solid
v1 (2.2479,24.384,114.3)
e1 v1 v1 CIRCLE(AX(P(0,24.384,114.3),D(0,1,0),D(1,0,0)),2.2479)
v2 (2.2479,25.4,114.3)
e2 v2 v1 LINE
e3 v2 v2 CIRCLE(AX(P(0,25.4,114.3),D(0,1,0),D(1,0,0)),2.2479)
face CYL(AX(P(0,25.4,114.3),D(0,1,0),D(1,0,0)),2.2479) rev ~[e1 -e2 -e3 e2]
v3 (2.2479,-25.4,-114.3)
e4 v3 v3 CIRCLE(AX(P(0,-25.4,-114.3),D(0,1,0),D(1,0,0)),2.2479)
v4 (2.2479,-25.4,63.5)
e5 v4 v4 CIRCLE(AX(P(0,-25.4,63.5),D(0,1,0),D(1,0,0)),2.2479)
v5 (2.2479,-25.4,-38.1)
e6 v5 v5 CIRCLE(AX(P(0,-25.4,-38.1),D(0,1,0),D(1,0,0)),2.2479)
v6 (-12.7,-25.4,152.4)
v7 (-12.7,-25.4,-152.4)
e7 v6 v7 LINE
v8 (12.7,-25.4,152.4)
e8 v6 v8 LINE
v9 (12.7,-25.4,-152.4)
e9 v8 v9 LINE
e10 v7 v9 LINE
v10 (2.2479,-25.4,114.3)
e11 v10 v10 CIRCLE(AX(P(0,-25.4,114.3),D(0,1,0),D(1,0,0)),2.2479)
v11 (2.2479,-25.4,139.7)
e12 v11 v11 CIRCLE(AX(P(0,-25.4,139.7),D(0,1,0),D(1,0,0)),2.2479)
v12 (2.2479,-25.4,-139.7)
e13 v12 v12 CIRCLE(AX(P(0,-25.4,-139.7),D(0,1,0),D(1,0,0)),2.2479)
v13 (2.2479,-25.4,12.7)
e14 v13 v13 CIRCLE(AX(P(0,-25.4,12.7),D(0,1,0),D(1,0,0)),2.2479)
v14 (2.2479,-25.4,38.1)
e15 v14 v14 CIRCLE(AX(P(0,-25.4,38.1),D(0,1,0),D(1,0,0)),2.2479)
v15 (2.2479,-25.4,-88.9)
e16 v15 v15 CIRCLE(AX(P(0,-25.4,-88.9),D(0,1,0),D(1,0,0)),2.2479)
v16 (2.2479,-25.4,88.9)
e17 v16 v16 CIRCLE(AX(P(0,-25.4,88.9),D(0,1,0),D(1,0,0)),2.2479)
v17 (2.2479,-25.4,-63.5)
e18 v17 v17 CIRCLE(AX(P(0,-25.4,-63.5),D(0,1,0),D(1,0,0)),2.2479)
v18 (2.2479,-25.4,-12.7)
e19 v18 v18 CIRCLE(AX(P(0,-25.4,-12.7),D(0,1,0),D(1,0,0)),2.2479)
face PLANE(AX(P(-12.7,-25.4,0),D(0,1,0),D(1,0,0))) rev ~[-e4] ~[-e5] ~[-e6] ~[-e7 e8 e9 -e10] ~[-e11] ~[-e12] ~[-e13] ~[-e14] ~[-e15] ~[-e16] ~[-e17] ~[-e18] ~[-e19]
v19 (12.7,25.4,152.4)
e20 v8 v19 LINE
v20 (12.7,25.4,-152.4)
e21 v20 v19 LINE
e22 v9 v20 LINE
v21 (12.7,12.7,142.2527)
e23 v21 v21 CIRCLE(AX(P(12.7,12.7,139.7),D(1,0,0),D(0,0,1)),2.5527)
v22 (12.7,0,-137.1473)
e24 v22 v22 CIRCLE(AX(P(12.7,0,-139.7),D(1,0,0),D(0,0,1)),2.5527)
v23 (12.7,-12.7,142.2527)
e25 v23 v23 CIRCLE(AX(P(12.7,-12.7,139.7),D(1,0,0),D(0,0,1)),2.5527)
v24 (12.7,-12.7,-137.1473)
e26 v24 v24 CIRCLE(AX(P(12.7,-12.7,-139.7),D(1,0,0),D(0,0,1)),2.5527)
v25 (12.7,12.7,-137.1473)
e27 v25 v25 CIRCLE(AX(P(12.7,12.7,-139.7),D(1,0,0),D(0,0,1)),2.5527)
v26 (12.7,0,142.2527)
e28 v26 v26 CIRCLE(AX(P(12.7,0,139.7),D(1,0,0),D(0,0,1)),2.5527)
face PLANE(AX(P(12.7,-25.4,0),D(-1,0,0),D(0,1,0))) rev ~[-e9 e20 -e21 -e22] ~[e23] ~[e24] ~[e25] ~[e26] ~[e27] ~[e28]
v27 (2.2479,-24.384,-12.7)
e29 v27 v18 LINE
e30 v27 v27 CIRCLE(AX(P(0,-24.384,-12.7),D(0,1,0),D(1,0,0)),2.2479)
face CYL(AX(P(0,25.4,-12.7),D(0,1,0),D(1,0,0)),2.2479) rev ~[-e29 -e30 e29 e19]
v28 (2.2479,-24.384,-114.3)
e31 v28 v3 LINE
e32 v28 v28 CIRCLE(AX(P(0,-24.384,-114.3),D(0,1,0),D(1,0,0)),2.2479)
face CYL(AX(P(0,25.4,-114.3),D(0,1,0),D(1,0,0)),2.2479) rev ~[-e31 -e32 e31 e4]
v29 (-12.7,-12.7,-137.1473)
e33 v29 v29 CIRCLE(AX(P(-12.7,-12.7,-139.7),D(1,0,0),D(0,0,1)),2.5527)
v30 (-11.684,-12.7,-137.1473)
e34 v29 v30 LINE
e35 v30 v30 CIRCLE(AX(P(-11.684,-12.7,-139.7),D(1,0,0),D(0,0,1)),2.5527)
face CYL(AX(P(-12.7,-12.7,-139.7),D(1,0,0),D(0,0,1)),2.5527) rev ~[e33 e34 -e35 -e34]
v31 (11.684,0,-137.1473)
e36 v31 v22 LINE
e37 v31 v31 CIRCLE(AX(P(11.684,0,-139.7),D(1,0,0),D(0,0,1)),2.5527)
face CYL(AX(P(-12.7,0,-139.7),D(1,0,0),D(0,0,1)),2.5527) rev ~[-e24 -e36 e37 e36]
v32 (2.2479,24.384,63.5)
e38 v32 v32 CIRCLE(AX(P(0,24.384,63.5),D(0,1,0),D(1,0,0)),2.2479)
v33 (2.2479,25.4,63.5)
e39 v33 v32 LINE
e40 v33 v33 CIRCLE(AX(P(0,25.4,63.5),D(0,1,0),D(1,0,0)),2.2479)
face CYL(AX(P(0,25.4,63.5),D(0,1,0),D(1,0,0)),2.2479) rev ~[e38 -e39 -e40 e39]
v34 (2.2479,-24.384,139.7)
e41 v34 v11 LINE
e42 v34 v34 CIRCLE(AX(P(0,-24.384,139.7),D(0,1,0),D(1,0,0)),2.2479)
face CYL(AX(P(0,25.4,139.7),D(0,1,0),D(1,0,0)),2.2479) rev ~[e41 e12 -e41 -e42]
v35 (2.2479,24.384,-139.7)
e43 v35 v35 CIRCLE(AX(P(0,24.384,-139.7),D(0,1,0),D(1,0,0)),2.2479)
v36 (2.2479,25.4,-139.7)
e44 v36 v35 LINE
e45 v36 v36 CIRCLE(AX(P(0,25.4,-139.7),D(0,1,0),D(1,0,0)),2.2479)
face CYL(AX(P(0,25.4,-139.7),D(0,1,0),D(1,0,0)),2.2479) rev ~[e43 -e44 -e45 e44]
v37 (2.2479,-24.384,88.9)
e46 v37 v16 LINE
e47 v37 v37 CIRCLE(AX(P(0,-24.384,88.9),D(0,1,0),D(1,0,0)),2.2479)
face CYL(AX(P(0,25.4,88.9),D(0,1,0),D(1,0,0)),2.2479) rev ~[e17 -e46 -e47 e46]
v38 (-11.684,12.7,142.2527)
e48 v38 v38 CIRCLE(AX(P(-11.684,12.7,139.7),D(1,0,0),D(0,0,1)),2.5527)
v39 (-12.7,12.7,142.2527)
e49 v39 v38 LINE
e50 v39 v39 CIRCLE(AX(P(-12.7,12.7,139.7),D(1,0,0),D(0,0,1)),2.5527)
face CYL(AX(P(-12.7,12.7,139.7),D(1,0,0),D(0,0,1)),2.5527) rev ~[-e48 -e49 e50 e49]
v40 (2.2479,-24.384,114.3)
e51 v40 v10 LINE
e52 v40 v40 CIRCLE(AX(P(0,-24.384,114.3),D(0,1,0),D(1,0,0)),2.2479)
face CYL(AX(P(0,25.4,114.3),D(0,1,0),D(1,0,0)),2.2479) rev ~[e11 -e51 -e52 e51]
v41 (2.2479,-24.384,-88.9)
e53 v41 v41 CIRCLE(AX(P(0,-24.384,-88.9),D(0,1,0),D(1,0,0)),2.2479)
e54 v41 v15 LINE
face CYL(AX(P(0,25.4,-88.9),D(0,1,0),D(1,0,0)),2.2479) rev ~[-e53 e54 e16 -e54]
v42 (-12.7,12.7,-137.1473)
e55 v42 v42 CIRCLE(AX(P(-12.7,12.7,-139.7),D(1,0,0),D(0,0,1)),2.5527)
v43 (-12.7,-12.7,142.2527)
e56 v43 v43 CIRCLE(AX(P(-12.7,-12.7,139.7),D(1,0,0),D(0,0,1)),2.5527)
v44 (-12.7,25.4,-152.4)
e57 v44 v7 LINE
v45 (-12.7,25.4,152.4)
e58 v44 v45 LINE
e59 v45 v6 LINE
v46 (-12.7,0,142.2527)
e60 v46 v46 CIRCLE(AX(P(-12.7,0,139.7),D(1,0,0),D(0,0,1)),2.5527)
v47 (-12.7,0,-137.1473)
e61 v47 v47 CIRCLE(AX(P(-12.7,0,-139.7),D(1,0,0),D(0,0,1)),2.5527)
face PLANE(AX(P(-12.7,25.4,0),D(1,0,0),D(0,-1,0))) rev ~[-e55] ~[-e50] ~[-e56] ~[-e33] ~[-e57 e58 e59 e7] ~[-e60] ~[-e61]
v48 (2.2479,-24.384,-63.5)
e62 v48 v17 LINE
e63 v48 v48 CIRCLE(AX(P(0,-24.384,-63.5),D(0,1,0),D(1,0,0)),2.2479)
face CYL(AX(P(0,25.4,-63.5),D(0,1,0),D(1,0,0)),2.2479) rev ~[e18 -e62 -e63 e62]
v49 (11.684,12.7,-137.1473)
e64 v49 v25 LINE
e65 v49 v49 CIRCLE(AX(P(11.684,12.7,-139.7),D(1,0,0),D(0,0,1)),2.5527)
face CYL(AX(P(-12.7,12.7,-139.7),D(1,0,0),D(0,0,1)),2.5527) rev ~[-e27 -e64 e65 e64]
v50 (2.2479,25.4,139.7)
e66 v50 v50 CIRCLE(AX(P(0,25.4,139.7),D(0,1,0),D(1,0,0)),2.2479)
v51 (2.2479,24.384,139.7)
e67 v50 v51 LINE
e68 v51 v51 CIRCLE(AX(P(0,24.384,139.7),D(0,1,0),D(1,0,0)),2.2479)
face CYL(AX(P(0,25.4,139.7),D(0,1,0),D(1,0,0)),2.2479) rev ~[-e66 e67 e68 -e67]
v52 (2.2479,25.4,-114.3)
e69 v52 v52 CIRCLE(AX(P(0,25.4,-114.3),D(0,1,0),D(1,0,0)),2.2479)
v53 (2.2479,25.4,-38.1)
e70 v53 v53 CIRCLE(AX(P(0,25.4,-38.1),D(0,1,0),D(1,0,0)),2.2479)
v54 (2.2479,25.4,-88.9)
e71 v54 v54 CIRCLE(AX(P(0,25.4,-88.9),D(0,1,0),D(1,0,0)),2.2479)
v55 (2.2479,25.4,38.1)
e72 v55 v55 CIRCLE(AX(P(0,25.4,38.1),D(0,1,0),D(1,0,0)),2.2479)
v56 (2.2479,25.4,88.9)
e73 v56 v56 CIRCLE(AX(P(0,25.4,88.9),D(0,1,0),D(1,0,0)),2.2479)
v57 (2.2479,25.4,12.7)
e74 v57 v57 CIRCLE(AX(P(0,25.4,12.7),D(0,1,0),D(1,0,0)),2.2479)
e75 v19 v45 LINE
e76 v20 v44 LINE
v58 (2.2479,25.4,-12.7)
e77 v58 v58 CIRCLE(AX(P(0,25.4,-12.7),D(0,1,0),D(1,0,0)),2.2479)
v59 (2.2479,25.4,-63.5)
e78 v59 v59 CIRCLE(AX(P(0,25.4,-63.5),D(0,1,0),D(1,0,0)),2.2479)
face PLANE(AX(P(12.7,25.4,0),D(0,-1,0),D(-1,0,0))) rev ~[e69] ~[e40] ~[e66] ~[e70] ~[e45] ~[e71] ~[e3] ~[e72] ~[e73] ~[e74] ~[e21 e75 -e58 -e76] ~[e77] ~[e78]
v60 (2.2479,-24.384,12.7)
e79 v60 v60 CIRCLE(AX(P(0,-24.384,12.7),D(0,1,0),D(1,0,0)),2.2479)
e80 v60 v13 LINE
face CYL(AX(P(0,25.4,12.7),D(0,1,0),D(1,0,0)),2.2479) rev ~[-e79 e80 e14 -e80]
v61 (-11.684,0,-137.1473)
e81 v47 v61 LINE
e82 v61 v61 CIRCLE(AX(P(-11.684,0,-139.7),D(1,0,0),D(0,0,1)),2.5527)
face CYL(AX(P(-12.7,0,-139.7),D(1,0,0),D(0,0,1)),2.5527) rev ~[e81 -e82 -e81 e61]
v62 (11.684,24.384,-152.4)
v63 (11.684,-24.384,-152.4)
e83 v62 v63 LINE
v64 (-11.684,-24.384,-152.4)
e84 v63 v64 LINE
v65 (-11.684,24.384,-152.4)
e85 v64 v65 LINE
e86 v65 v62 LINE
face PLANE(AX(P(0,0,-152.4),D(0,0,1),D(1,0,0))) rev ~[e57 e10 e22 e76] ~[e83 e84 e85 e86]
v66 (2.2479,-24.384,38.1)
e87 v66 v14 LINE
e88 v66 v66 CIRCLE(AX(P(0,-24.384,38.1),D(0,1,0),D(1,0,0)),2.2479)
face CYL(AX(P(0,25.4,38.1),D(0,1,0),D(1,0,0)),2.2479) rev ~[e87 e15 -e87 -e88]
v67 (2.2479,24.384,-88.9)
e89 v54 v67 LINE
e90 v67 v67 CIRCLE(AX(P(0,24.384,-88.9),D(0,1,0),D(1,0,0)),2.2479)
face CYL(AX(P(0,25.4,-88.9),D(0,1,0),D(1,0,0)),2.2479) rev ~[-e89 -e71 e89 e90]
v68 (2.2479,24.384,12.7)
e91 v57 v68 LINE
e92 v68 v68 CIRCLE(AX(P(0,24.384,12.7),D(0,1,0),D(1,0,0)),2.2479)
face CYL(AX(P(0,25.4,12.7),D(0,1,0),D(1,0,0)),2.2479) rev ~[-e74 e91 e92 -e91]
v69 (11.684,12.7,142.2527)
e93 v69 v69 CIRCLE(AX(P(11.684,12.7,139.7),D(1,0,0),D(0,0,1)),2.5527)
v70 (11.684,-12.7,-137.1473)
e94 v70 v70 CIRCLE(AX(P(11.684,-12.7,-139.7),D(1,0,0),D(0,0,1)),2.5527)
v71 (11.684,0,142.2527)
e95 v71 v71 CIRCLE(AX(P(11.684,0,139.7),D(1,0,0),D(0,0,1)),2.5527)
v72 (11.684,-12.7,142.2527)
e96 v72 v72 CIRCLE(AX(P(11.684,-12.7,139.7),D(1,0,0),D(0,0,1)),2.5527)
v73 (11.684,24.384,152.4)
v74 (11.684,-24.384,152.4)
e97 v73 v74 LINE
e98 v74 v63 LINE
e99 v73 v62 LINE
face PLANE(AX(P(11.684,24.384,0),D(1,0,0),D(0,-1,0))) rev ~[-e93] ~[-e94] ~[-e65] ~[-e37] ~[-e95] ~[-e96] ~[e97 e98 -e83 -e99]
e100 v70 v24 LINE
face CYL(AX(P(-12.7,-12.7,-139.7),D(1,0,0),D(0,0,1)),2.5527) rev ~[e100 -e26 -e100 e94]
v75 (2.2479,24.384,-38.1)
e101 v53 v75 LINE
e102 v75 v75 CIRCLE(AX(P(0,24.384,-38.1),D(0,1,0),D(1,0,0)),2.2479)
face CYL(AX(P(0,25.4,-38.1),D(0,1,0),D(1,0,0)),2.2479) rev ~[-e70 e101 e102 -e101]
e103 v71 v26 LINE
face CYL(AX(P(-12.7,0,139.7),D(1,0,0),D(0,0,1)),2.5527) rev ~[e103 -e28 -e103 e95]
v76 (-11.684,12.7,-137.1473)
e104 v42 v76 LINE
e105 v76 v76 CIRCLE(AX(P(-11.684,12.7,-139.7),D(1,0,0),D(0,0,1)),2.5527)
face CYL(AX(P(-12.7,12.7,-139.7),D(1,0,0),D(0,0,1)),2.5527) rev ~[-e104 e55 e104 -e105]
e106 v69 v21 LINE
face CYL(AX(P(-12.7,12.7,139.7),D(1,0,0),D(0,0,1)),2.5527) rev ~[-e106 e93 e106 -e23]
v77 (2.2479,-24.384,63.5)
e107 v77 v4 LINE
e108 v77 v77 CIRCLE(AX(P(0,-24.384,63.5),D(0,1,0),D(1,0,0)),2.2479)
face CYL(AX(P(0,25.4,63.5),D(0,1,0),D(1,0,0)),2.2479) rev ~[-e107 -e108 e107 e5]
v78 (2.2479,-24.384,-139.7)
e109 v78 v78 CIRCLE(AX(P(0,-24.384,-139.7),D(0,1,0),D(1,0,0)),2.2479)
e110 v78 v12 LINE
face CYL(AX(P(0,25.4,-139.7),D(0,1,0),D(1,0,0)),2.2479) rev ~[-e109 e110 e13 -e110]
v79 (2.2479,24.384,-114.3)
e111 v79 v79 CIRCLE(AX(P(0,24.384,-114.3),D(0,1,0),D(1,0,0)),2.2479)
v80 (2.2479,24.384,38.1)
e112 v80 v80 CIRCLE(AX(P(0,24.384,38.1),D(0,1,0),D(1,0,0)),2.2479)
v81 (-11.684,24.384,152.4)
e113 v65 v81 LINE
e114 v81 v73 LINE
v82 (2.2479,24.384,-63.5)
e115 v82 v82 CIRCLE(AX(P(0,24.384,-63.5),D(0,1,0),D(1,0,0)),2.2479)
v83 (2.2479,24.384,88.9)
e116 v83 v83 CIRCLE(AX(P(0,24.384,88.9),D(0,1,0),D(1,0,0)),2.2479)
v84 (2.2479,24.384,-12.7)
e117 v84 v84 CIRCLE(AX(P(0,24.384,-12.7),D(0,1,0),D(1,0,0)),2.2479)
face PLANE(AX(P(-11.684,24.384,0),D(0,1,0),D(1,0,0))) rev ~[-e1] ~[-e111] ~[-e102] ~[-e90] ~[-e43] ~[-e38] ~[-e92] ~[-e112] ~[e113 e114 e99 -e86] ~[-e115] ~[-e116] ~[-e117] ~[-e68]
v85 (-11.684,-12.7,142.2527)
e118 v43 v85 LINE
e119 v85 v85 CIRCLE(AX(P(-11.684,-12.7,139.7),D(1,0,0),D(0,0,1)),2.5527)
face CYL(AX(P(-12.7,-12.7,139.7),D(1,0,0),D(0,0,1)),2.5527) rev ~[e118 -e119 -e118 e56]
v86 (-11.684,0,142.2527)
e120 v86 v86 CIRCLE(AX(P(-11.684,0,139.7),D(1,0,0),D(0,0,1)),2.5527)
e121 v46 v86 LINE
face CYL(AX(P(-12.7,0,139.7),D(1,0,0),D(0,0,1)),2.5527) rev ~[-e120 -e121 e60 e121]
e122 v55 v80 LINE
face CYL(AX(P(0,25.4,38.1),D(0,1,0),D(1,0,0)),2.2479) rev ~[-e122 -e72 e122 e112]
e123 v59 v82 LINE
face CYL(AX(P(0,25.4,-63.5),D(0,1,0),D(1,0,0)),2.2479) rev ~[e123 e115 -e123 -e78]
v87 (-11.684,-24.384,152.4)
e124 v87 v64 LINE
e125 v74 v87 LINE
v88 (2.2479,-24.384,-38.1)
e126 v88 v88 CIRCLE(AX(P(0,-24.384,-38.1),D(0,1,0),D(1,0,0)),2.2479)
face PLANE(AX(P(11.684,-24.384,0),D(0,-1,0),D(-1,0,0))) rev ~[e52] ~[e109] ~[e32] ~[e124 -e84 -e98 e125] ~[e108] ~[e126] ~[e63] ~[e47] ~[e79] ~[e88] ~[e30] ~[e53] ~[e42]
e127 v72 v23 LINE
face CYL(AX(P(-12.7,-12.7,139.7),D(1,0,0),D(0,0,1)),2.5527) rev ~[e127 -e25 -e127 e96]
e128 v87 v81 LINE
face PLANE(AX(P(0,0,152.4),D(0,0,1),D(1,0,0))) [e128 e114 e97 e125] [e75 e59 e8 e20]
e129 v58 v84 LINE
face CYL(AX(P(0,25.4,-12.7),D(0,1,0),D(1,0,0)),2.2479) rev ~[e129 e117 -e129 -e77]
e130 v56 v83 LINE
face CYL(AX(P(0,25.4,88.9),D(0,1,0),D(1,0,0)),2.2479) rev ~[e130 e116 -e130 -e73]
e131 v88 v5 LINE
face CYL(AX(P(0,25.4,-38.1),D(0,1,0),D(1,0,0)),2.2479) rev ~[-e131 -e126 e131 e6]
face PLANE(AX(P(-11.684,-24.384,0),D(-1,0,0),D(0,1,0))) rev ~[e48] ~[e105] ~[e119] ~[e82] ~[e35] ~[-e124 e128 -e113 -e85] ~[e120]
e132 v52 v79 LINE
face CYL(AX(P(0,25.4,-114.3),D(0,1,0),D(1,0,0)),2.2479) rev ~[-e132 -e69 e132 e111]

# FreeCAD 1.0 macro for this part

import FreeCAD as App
import Part
import Sketcher

V = App.Vector
Q = App.Units.Quantity


def add_polygon(sketch, points):
    """Adds a closed chain of lines whose ends are joined by coincident constraints."""
    first, n = sketch.GeometryCount, len(points)
    for a, b in zip(points, points[1:] + points[:1]):
        sketch.addGeometry(Part.LineSegment(App.Vector(*a, 0), App.Vector(*b, 0)), False)
    for i in range(n):
        sketch.addConstraint(Sketcher.Constraint("Coincident", first + i, 2, first + (i + 1) % n, 1))

doc = App.newDocument("Part")
body = doc.addObject("PartDesign::Body", "Body")

sketch1 = body.newObject("Sketcher::SketchObject", "Sketch")
sketch1.AttachmentSupport = (doc.getObject("XY_Plane"), [""])
sketch1.MapMode = "FlatFace"
add_polygon(sketch1, [(13, -25), (13, 25), (-13, 25), (-13, -25)])
add_polygon(sketch1, [(-12, -24), (-12, 24), (12, 24), (12, -24)])
sketch1.addConstraint(Sketcher.Constraint("Vertical", 0))
sketch1.addConstraint(Sketcher.Constraint("Horizontal", 1))
sketch1.addConstraint(Sketcher.Constraint("Vertical", 2))
sketch1.addConstraint(Sketcher.Constraint("Horizontal", 3))
sketch1.addConstraint(Sketcher.Constraint("Vertical", 4))
sketch1.addConstraint(Sketcher.Constraint("Horizontal", 5))
sketch1.addConstraint(Sketcher.Constraint("Vertical", 6))
sketch1.addConstraint(Sketcher.Constraint("Horizontal", 7))
sketch1.addConstraint(Sketcher.Constraint("Symmetric", 0, 2, 2, 2, -1, 1))
sketch1.addConstraint(Sketcher.Constraint("Symmetric", 4, 2, 6, 2, -1, 1))
sketch1.addConstraint(Sketcher.Constraint("DistanceX", 1, 2, 1, 1, Q("1 in")))
sketch1.addConstraint(Sketcher.Constraint("DistanceY", 0, 1, 0, 2, Q("2 in")))
sketch1.addConstraint(Sketcher.Constraint("DistanceX", 1, 2, 4, 2, Q("0.04 in")))
sketch1.addConstraint(Sketcher.Constraint("DistanceY", 4, 2, 1, 2, Q("0.04 in")))
pad1 = body.newObject("PartDesign::Pad", "Pad")
pad1.Profile = sketch1
pad1.Length = Q("12 in")
pad1.Midplane = True

sketch2 = body.newObject("Sketcher::SketchObject", "Sketch001")
sketch2.AttachmentSupport = (doc.getObject("XZ_Plane"), [""])
sketch2.MapMode = "FlatFace"
sketch2.AttachmentOffset = App.Placement(V(0, 0, -1 * 25.4), App.Rotation())
sketch2.addGeometry(Part.Circle(V(0, 139.7, 0), V(0, 0, 1), 2.2), False)
sketch2.addConstraint(Sketcher.Constraint("PointOnObject", 0, 3, -2))
sketch2.addConstraint(Sketcher.Constraint("Diameter", 0, Q("0.177 in")))
sketch2.addConstraint(Sketcher.Constraint("DistanceY", -1, 1, 0, 3, Q("5.5 in")))
pocket1 = body.newObject("PartDesign::Pocket", "Pocket")
pocket1.Profile = sketch2
pocket1.Type = "ThroughAll"
pocket1.Reversed = True
doc.recompute()

linearpattern = body.newObject("PartDesign::LinearPattern", "LinearPattern")
linearpattern.Originals = [pocket1]
linearpattern.Direction = (doc.getObject("Z_Axis"), [""])
linearpattern.Mode = "offset"
linearpattern.Offset = Q("1 in")
linearpattern.Occurrences = 12
linearpattern.Reversed = True
body.Tip = linearpattern

sketch3 = body.newObject("Sketcher::SketchObject", "Sketch002")
sketch3.AttachmentSupport = (doc.getObject("YZ_Plane"), [""])
sketch3.MapMode = "FlatFace"
sketch3.AttachmentOffset = App.Placement(V(0, 0, -0.5 * 25.4), App.Rotation())
sketch3.addGeometry(Part.Circle(V(-12.7, -139.7, 0), V(0, 0, 1), 2.6), False)
sketch3.addGeometry(Part.Circle(V(0, -139.7, 0), V(0, 0, 1), 2.6), False)
sketch3.addGeometry(Part.Circle(V(12.7, -139.7, 0), V(0, 0, 1), 2.6), False)
sketch3.addGeometry(Part.Circle(V(12.7, 139.7, 0), V(0, 0, 1), 2.6), False)
sketch3.addGeometry(Part.Circle(V(-12.7, 139.7, 0), V(0, 0, 1), 2.6), False)
sketch3.addGeometry(Part.Circle(V(0, 139.7, 0), V(0, 0, 1), 2.6), False)
sketch3.addConstraint(Sketcher.Constraint("Equal", 0, 1))
sketch3.addConstraint(Sketcher.Constraint("Equal", 1, 2))
sketch3.addConstraint(Sketcher.Constraint("Equal", 2, 3))
sketch3.addConstraint(Sketcher.Constraint("Equal", 3, 4))
sketch3.addConstraint(Sketcher.Constraint("Equal", 4, 5))
sketch3.addConstraint(Sketcher.Constraint("Symmetric", 0, 3, 3, 3, -1, 1))
sketch3.addConstraint(Sketcher.Constraint("Symmetric", 2, 3, 4, 3, -1, 1))
sketch3.addConstraint(Sketcher.Constraint("Symmetric", 1, 3, 5, 3, -1, 1))
sketch3.addConstraint(Sketcher.Constraint("Symmetric", 0, 3, 2, 3, -2))
sketch3.addConstraint(Sketcher.Constraint("PointOnObject", 1, 3, -2))
sketch3.addConstraint(Sketcher.Constraint("Horizontal", 0, 3, 1, 3))
sketch3.addConstraint(Sketcher.Constraint("Diameter", 0, Q("0.201 in")))
sketch3.addConstraint(Sketcher.Constraint("DistanceX", 0, 3, 2, 3, Q("1 in")))
sketch3.addConstraint(Sketcher.Constraint("DistanceY", 2, 3, 3, 3, Q("11 in")))
doc.recompute()
hole = body.newObject("PartDesign::Hole", "Hole")
hole.Profile = sketch3
hole.ThreadType = "None"
hole.Diameter = Q("0.201 in")
hole.DepthType = "ThroughAll"
hole.Reversed = True

doc.recompute()
